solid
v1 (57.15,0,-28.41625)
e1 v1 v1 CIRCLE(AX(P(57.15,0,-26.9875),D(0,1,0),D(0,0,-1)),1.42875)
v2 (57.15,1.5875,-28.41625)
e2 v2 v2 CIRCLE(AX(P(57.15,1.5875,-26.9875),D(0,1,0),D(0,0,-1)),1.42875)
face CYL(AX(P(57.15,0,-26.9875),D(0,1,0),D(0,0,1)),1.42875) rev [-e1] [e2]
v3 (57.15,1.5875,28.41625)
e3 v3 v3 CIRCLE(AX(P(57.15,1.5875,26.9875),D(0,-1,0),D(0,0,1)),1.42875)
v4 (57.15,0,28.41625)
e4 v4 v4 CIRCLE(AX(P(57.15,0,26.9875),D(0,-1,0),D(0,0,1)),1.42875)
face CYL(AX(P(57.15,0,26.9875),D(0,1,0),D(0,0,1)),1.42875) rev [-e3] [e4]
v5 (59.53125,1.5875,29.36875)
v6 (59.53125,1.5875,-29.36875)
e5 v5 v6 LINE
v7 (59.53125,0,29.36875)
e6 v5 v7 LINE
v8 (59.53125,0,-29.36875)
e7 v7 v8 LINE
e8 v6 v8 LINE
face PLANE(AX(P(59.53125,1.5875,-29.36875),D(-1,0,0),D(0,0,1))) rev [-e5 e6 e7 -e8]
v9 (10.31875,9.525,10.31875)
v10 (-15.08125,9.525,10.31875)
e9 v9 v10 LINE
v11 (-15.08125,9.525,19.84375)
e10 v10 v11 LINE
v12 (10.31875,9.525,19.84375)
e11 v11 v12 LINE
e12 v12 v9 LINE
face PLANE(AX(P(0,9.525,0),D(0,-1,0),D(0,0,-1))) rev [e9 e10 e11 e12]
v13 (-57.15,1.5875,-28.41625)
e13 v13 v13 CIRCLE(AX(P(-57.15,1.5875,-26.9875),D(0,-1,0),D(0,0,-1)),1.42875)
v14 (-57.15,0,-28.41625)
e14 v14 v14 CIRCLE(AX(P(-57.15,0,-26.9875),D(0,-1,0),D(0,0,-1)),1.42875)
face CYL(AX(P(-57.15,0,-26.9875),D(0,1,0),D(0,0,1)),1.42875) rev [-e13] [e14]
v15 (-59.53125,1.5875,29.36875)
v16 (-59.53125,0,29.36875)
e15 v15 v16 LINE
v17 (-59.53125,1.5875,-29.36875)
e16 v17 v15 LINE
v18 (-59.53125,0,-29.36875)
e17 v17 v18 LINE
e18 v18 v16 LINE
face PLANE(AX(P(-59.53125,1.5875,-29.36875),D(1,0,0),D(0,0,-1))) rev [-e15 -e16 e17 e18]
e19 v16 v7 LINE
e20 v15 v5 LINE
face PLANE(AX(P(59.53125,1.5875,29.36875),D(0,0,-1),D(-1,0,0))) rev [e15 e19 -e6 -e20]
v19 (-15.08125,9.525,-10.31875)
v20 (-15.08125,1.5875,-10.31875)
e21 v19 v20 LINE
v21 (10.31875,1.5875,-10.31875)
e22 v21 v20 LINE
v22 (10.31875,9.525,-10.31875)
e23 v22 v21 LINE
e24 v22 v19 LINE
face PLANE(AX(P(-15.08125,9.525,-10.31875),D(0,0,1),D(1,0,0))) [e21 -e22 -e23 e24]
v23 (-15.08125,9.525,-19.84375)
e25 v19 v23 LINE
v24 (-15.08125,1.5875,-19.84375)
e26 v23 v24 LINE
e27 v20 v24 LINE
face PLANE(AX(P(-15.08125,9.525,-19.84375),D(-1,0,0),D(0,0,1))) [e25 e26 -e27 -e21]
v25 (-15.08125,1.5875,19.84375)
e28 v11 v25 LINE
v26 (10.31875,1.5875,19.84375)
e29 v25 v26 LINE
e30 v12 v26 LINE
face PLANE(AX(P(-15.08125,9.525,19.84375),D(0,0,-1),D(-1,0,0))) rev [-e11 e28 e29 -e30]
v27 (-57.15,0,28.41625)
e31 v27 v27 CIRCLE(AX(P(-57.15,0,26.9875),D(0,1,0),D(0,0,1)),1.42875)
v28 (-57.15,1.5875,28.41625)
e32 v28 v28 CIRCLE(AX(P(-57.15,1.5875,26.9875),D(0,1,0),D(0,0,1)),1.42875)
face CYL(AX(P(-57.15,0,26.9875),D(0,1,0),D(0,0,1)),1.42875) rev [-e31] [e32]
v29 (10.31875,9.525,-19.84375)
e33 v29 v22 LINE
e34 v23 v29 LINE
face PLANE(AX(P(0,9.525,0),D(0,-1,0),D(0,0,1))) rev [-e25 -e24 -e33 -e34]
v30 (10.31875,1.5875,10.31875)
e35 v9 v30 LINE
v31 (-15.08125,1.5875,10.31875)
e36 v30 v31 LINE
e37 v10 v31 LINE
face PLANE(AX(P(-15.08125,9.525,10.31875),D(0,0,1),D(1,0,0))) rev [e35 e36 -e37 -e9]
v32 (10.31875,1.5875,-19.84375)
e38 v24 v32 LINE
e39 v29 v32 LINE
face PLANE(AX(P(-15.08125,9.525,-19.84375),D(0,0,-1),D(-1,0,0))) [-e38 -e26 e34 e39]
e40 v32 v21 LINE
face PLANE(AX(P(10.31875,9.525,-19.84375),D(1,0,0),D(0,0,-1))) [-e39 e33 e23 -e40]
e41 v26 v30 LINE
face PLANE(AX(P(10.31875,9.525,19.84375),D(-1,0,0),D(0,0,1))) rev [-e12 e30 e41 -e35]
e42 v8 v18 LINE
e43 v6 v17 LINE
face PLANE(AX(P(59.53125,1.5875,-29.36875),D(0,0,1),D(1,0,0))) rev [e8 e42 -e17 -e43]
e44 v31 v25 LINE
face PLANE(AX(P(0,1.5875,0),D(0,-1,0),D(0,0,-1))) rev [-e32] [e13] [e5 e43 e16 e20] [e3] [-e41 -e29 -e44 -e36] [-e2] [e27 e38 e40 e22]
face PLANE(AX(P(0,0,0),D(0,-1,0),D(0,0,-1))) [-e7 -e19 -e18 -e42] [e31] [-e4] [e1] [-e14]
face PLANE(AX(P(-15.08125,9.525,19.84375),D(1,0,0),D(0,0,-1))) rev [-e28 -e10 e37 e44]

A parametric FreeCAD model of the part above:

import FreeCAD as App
import Part
import Sketcher

V = App.Vector
Q = App.Units.Quantity


def add_polygon(sketch, points):
    """Adds a closed chain of lines whose ends are joined by coincident constraints."""
    first, n = sketch.GeometryCount, len(points)
    for a, b in zip(points, points[1:] + points[:1]):
        sketch.addGeometry(Part.LineSegment(App.Vector(*a, 0), App.Vector(*b, 0)), False)
    for i in range(n):
        sketch.addConstraint(Sketcher.Constraint("Coincident", first + i, 2, first + (i + 1) % n, 1))

doc = App.newDocument("Part")
body = doc.addObject("PartDesign::Body", "Body")

# Sketch on XZ plane
sketch1 = body.newObject("Sketcher::SketchObject", "Sketch")
sketch1.AttachmentSupport = (doc.getObject("XZ_Plane"), [""])
sketch1.MapMode = "FlatFace"
add_polygon(sketch1, [(-60, -29), (-60, 29), (60, 29), (60, -29)])  # lines 0-3
sketch1.addConstraint(Sketcher.Constraint("Vertical", 0))
sketch1.addConstraint(Sketcher.Constraint("Horizontal", 1))
sketch1.addConstraint(Sketcher.Constraint("Vertical", 2))
sketch1.addConstraint(Sketcher.Constraint("Horizontal", 3))
sketch1.addConstraint(Sketcher.Constraint("Symmetric", 0, 2, 2, 2, -1, 1))
sketch1.addConstraint(Sketcher.Constraint("DistanceX", 1, 1, 1, 2, Q("4.6875 in")))
sketch1.addConstraint(Sketcher.Constraint("DistanceY", 0, 1, 0, 2, Q("2.3125 in")))
pad1 = body.newObject("PartDesign::Pad", "Pad")
pad1.Profile = sketch1
pad1.Length = Q("0.0625 in")
pad1.Reversed = True

# Sketch on XZ plane
sketch2 = body.newObject("Sketcher::SketchObject", "Sketch001")
sketch2.AttachmentSupport = (doc.getObject("XZ_Plane"), [""])
sketch2.MapMode = "FlatFace"
sketch2.AttachmentOffset = App.Placement(V(0, 0, -0.0625 * 25.4), App.Rotation())
add_polygon(sketch2, [(-15, 10), (-15, 20), (10, 20), (10, 10)])  # lines 0-3
sketch2.addConstraint(Sketcher.Constraint("Vertical", 0))
sketch2.addConstraint(Sketcher.Constraint("Horizontal", 1))
sketch2.addConstraint(Sketcher.Constraint("Vertical", 2))
sketch2.addConstraint(Sketcher.Constraint("Horizontal", 3))
sketch2.addConstraint(Sketcher.Constraint("DistanceX", 1, 1, 1, 2, Q("1 in")))
sketch2.addConstraint(Sketcher.Constraint("DistanceY", 0, 1, 0, 2, Q("0.375 in")))
sketch2.addConstraint(Sketcher.Constraint("DistanceX", 0, 2, -1, 1, Q("0.59375 in")))
sketch2.addConstraint(Sketcher.Constraint("DistanceY", -1, 1, 0, 2, Q("0.78125 in")))
pad2 = body.newObject("PartDesign::Pad", "Pad001")
pad2.Profile = sketch2
pad2.Length = Q("0.3125 in")
pad2.Reversed = True
doc.recompute()

mirrored = body.newObject("PartDesign::Mirrored", "Mirrored")
mirrored.Originals = [pad2]
mirrored.MirrorPlane = (doc.getObject("XY_Plane"), [""])
body.Tip = mirrored

# Sketch on XZ plane
sketch3 = body.newObject("Sketcher::SketchObject", "Sketch002")
sketch3.AttachmentSupport = (doc.getObject("XZ_Plane"), [""])
sketch3.MapMode = "FlatFace"
sketch3.AttachmentOffset = App.Placement(V(0, 0, -0.0625 * 25.4), App.Rotation())
sketch3.addGeometry(Part.Circle(V(-57.1, 27, 0), V(0, 0, 1), 1.4), False)
sketch3.addConstraint(Sketcher.Constraint("Diameter", 0, Q("0.1125 in")))
sketch3.addConstraint(Sketcher.Constraint("DistanceX", 0, 3, -1, 1, Q("2.25 in")))
sketch3.addConstraint(Sketcher.Constraint("DistanceY", -1, 1, 0, 3, Q("1.0625 in")))
pocket1 = body.newObject("PartDesign::Pocket", "Pocket")
pocket1.Profile = sketch3
pocket1.Type = "ThroughAll"
pocket1.Reversed = True
doc.recompute()

mirrored2 = body.newObject("PartDesign::Mirrored", "Mirrored001")
mirrored2.Originals = [pocket1]
mirrored2.MirrorPlane = (doc.getObject("YZ_Plane"), [""])
body.Tip = mirrored2
doc.recompute()

mirrored3 = body.newObject("PartDesign::Mirrored", "Mirrored002")
mirrored3.Originals = [pocket1]
mirrored3.MirrorPlane = (doc.getObject("XY_Plane"), [""])
body.Tip = mirrored3

# Sketch on XZ plane
sketch4 = body.newObject("Sketcher::SketchObject", "Sketch003")
sketch4.AttachmentSupport = (doc.getObject("XZ_Plane"), [""])
sketch4.MapMode = "FlatFace"
sketch4.AttachmentOffset = App.Placement(V(0, 0, -0.0625 * 25.4), App.Rotation())
sketch4.addGeometry(Part.Circle(V(57.1, -27, 0), V(0, 0, 1), 1.4), False)
sketch4.addConstraint(Sketcher.Constraint("Diameter", 0, Q("0.1125 in")))
sketch4.addConstraint(Sketcher.Constraint("DistanceX", -1, 1, 0, 3, Q("2.25 in")))
sketch4.addConstraint(Sketcher.Constraint("DistanceY", 0, 3, -1, 1, Q("1.0625 in")))
pocket2 = body.newObject("PartDesign::Pocket", "Pocket001")
pocket2.Profile = sketch4
pocket2.Type = "ThroughAll"
pocket2.Reversed = True

doc.recompute()
